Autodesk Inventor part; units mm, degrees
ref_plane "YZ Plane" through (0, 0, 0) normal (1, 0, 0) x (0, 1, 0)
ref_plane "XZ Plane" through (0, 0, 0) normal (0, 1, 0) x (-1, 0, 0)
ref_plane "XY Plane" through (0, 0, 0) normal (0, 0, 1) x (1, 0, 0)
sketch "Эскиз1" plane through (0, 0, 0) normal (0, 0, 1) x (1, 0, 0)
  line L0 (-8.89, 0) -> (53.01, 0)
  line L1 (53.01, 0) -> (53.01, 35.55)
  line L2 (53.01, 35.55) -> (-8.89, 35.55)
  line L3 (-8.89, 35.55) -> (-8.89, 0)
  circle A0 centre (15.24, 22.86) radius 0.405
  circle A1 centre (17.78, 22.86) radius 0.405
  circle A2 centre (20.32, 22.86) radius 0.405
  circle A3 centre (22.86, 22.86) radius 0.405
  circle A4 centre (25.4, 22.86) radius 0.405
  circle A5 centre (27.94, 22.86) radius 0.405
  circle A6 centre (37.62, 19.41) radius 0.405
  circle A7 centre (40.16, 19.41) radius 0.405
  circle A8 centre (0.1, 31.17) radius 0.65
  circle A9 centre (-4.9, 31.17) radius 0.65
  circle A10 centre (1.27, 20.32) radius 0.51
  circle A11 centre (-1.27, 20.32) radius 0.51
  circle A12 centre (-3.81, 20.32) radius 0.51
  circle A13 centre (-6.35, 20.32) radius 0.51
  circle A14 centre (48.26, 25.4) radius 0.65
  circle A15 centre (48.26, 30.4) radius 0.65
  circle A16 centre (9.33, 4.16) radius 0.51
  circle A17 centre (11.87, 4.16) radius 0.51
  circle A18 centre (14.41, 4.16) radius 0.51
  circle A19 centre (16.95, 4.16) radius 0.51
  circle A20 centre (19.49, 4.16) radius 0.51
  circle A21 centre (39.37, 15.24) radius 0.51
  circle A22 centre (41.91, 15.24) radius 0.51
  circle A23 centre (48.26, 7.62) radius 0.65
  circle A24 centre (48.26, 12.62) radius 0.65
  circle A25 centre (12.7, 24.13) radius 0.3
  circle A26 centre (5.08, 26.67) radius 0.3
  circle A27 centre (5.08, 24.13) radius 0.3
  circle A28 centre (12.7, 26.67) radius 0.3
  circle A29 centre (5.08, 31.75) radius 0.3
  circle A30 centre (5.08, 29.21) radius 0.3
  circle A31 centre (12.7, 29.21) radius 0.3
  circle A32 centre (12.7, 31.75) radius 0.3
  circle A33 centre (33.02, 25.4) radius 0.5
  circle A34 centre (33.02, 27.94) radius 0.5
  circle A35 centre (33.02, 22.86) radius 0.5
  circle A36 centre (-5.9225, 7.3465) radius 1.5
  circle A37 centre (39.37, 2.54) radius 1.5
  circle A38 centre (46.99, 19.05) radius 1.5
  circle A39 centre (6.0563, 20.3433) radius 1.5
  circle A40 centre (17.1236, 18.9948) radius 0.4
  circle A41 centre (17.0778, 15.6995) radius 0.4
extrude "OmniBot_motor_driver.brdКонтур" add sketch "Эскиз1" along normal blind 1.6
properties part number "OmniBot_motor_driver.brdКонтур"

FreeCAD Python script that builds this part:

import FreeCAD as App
import Part
import Sketcher
from FreeCAD import Vector
Q = App.Units.Quantity


def add_polygon(sketch, points):
    """Adds a closed chain of lines whose ends are joined by coincident constraints."""
    first, n = sketch.GeometryCount, len(points)
    for a, b in zip(points, points[1:] + points[:1]):
        sketch.addGeometry(Part.LineSegment(App.Vector(*a, 0), App.Vector(*b, 0)), False)
    for i in range(n):
        sketch.addConstraint(Sketcher.Constraint("Coincident", first + i, 2, first + (i + 1) % n, 1))

doc = App.newDocument("Part")
body = doc.addObject("PartDesign::Body", "Body")

# Sketch on XY plane
sketch1 = doc.addObject("Sketcher::SketchObject", "Sketch")
body.addObject(sketch1)
sketch1.AttachmentSupport = (doc.XY_Plane, [""])
sketch1.MapMode = "FlatFace"
add_polygon(sketch1, [(-8.89, 35.55), (-8.89, 0), (53.01, 0), (53.01, 35.55)])  # lines 0-3
sketch1.addGeometry(Part.Circle(Vector(-5.92, 7.35, 0), Vector(0, 0, 1), 1.5), False)  # 4
sketch1.addGeometry(Part.Circle(Vector(9.33, 4.16, 0), Vector(0, 0, 1), 0.51), False)  # 5
sketch1.addGeometry(Part.Circle(Vector(11.87, 4.16, 0), Vector(0, 0, 1), 0.51), False)  # 6
sketch1.addGeometry(Part.Circle(Vector(14.41, 4.16, 0), Vector(0, 0, 1), 0.51), False)  # 7
sketch1.addGeometry(Part.Circle(Vector(16.95, 4.16, 0), Vector(0, 0, 1), 0.51), False)  # 8
sketch1.addGeometry(Part.Circle(Vector(19.49, 4.16, 0), Vector(0, 0, 1), 0.51), False)  # 9
sketch1.addGeometry(Part.Circle(Vector(17.08, 15.7, 0), Vector(0, 0, 1), 0.4), False)  # 10
sketch1.addGeometry(Part.Circle(Vector(39.37, 2.54, 0), Vector(0, 0, 1), 1.5), False)  # 11
sketch1.addGeometry(Part.Circle(Vector(48.26, 7.62, 0), Vector(0, 0, 1), 0.65), False)  # 12
sketch1.addGeometry(Part.Circle(Vector(48.26, 12.62, 0), Vector(0, 0, 1), 0.65), False)  # 13
sketch1.addGeometry(Part.Circle(Vector(39.37, 15.24, 0), Vector(0, 0, 1), 0.51), False)  # 14
sketch1.addGeometry(Part.Circle(Vector(41.91, 15.24, 0), Vector(0, 0, 1), 0.51), False)  # 15
sketch1.addGeometry(Part.Circle(Vector(-6.35, 20.32, 0), Vector(0, 0, 1), 0.51), False)  # 16
sketch1.addGeometry(Part.Circle(Vector(-3.81, 20.32, 0), Vector(0, 0, 1), 0.51), False)  # 17
sketch1.addGeometry(Part.Circle(Vector(-1.27, 20.32, 0), Vector(0, 0, 1), 0.51), False)  # 18
sketch1.addGeometry(Part.Circle(Vector(1.27, 20.32, 0), Vector(0, 0, 1), 0.51), False)  # 19
sketch1.addGeometry(Part.Circle(Vector(6.06, 20.34, 0), Vector(0, 0, 1), 1.5), False)  # 20
sketch1.addGeometry(Part.Circle(Vector(5.08, 24.13, 0), Vector(0, 0, 1), 0.3), False)  # 21
sketch1.addGeometry(Part.Circle(Vector(17.12, 18.99, 0), Vector(0, 0, 1), 0.4), False)  # 22
sketch1.addGeometry(Part.Circle(Vector(12.7, 24.13, 0), Vector(0, 0, 1), 0.3), False)  # 23
sketch1.addGeometry(Part.Circle(Vector(15.24, 22.86, 0), Vector(0, 0, 1), 0.41), False)  # 24
sketch1.addGeometry(Part.Circle(Vector(17.78, 22.86, 0), Vector(0, 0, 1), 0.41), False)  # 25
sketch1.addGeometry(Part.Circle(Vector(20.32, 22.86, 0), Vector(0, 0, 1), 0.41), False)  # 26
sketch1.addGeometry(Part.Circle(Vector(5.08, 26.67, 0), Vector(0, 0, 1), 0.3), False)  # 27
sketch1.addGeometry(Part.Circle(Vector(5.08, 29.21, 0), Vector(0, 0, 1), 0.3), False)  # 28
sketch1.addGeometry(Part.Circle(Vector(-4.9, 31.17, 0), Vector(0, 0, 1), 0.65), False)  # 29
sketch1.addGeometry(Part.Circle(Vector(0.1, 31.17, 0), Vector(0, 0, 1), 0.65), False)  # 30
sketch1.addGeometry(Part.Circle(Vector(5.08, 31.75, 0), Vector(0, 0, 1), 0.3), False)  # 31
sketch1.addGeometry(Part.Circle(Vector(12.7, 26.67, 0), Vector(0, 0, 1), 0.3), False)  # 32
sketch1.addGeometry(Part.Circle(Vector(12.7, 29.21, 0), Vector(0, 0, 1), 0.3), False)  # 33
sketch1.addGeometry(Part.Circle(Vector(12.7, 31.75, 0), Vector(0, 0, 1), 0.3), False)  # 34
sketch1.addGeometry(Part.Circle(Vector(22.86, 22.86, 0), Vector(0, 0, 1), 0.41), False)  # 35
sketch1.addGeometry(Part.Circle(Vector(25.4, 22.86, 0), Vector(0, 0, 1), 0.41), False)  # 36
sketch1.addGeometry(Part.Circle(Vector(27.94, 22.86, 0), Vector(0, 0, 1), 0.41), False)  # 37
sketch1.addGeometry(Part.Circle(Vector(33.02, 22.86, 0), Vector(0, 0, 1), 0.5), False)  # 38
sketch1.addGeometry(Part.Circle(Vector(33.02, 25.4, 0), Vector(0, 0, 1), 0.5), False)  # 39
sketch1.addGeometry(Part.Circle(Vector(37.62, 19.41, 0), Vector(0, 0, 1), 0.41), False)  # 40
sketch1.addGeometry(Part.Circle(Vector(40.16, 19.41, 0), Vector(0, 0, 1), 0.41), False)  # 41
sketch1.addGeometry(Part.Circle(Vector(46.99, 19.05, 0), Vector(0, 0, 1), 1.5), False)  # 42
sketch1.addGeometry(Part.Circle(Vector(48.26, 25.4, 0), Vector(0, 0, 1), 0.65), False)  # 43
sketch1.addGeometry(Part.Circle(Vector(33.02, 27.94, 0), Vector(0, 0, 1), 0.5), False)  # 44
sketch1.addGeometry(Part.Circle(Vector(48.26, 30.4, 0), Vector(0, 0, 1), 0.65), False)  # 45
sketch1.addConstraint([
    Sketcher.Constraint("Vertical", 0),
    Sketcher.Constraint("Horizontal", 1),
    Sketcher.Constraint("Vertical", 2),
    Sketcher.Constraint("Horizontal", 3),
    Sketcher.Constraint("Equal", 5, 6),
    Sketcher.Constraint("Equal", 6, 7),
    Sketcher.Constraint("Equal", 7, 8),
    Sketcher.Constraint("Equal", 8, 9),
    Sketcher.Constraint("Equal", 4, 11),
    Sketcher.Constraint("Equal", 12, 13),
    Sketcher.Constraint("Equal", 9, 14),
    Sketcher.Constraint("Equal", 14, 15),
    Sketcher.Constraint("Equal", 15, 16),
    Sketcher.Constraint("Equal", 16, 17),
    Sketcher.Constraint("Equal", 17, 18),
    Sketcher.Constraint("Equal", 18, 19),
    Sketcher.Constraint("Equal", 11, 20),
    Sketcher.Constraint("Equal", 10, 22),
    Sketcher.Constraint("Equal", 21, 23),
    Sketcher.Constraint("Equal", 24, 25),
    Sketcher.Constraint("Equal", 25, 26),
    Sketcher.Constraint("Equal", 23, 27),
    Sketcher.Constraint("Equal", 27, 28),
    Sketcher.Constraint("Equal", 13, 29),
    Sketcher.Constraint("Equal", 29, 30),
    Sketcher.Constraint("Equal", 28, 31),
    Sketcher.Constraint("Equal", 31, 32),
    Sketcher.Constraint("Equal", 32, 33),
    Sketcher.Constraint("Equal", 33, 34),
    Sketcher.Constraint("Equal", 26, 35),
    Sketcher.Constraint("Equal", 35, 36),
    Sketcher.Constraint("Equal", 36, 37),
    Sketcher.Constraint("Equal", 38, 39),
    Sketcher.Constraint("Equal", 37, 40),
    Sketcher.Constraint("Equal", 40, 41),
    Sketcher.Constraint("Equal", 20, 42),
    Sketcher.Constraint("Equal", 30, 43),
    Sketcher.Constraint("Equal", 39, 44),
    Sketcher.Constraint("Equal", 43, 45),
    Sketcher.Constraint("Symmetric", 18, 3, 19, 3, -2),
    Sketcher.Constraint("PointOnObject", 0, 2, -1),
    Sketcher.Constraint("Horizontal", 5, 3, 6, 3),
    Sketcher.Constraint("Horizontal", 6, 3, 7, 3),
    Sketcher.Constraint("Horizontal", 7, 3, 8, 3),
    Sketcher.Constraint("Horizontal", 8, 3, 9, 3),
    Sketcher.Constraint("Horizontal", 14, 3, 15, 3),
    Sketcher.Constraint("Horizontal", 16, 3, 17, 3),
    Sketcher.Constraint("Horizontal", 17, 3, 18, 3),
    Sketcher.Constraint("Horizontal", 21, 3, 23, 3),
    Sketcher.Constraint("Horizontal", 24, 3, 25, 3),
    Sketcher.Constraint("Horizontal", 25, 3, 26, 3),
    Sketcher.Constraint("Horizontal", 29, 3, 30, 3),
    Sketcher.Constraint("Horizontal", 27, 3, 32, 3),
    Sketcher.Constraint("Horizontal", 28, 3, 33, 3),
    Sketcher.Constraint("Horizontal", 31, 3, 34, 3),
    Sketcher.Constraint("Horizontal", 26, 3, 35, 3),
    Sketcher.Constraint("Horizontal", 35, 3, 36, 3),
    Sketcher.Constraint("Horizontal", 36, 3, 37, 3),
    Sketcher.Constraint("Horizontal", 37, 3, 38, 3),
    Sketcher.Constraint("Horizontal", 40, 3, 41, 3),
    Sketcher.Constraint("Horizontal", 39, 3, 43, 3),
    Sketcher.Constraint("Vertical", 12, 3, 13, 3),
    Sketcher.Constraint("Vertical", 11, 3, 14, 3),
    Sketcher.Constraint("Vertical", 21, 3, 27, 3),
    Sketcher.Constraint("Vertical", 27, 3, 28, 3),
    Sketcher.Constraint("Vertical", 28, 3, 31, 3),
    Sketcher.Constraint("Vertical", 23, 3, 32, 3),
    Sketcher.Constraint("Vertical", 32, 3, 33, 3),
    Sketcher.Constraint("Vertical", 33, 3, 34, 3),
    Sketcher.Constraint("Vertical", 38, 3, 39, 3),
    Sketcher.Constraint("Vertical", 13, 3, 43, 3),
    Sketcher.Constraint("Vertical", 39, 3, 44, 3),
    Sketcher.Constraint("Vertical", 43, 3, 45, 3),
    Sketcher.Constraint("Diameter", 4, Q("3 mm")),
    Sketcher.Constraint("Diameter", 38, Q("1 mm")),
    Sketcher.Constraint("Diameter", 10, Q("0.8 mm")),
    Sketcher.Constraint("Diameter", 12, Q("1.3 mm")),
    Sketcher.Constraint("Diameter", 21, Q("0.6 mm")),
    Sketcher.Constraint("Diameter", 5, Q("1.02 mm")),
    Sketcher.Constraint("Diameter", 24, Q("0.81 mm")),
    Sketcher.Constraint("DistanceX", 1, 1, 1, 2, Q("61.9 mm")),
    Sketcher.Constraint("DistanceY", 12, 3, 13, 3, Q("5 mm")),
    Sketcher.Constraint("DistanceX", 29, 3, 30, 3, Q("5 mm")),
    Sketcher.Constraint("DistanceY", 43, 3, 45, 3, Q("5 mm")),
    Sketcher.Constraint("DistanceY", 0, 2, 0, 1, Q("35.55 mm")),
    Sketcher.Constraint("DistanceX", -1, 1, 23, 3, Q("12.7 mm")),
    Sketcher.Constraint("DistanceX", 29, 3, -1, 1, Q("4.9 mm")),
    Sketcher.Constraint("DistanceX", -1, 1, 36, 3, Q("25.4 mm")),
    Sketcher.Constraint("DistanceY", -1, 1, 39, 3, Q("25.4 mm")),
    Sketcher.Constraint("DistanceX", 6, 3, 11, 3, Q("27.5 mm")),
    Sketcher.Constraint("DistanceY", 11, 3, 14, 3, Q("12.7 mm")),
    Sketcher.Constraint("DistanceX", 18, 3, 5, 3, Q("10.6 mm")),
    Sketcher.Constraint("DistanceY", 27, 3, 29, 3, Q("4.5 mm")),
    Sketcher.Constraint("DistanceX", 38, 3, 40, 3, Q("4.6 mm")),
    Sketcher.Constraint("DistanceX", 41, 3, 43, 3, Q("8.1 mm")),
    Sketcher.Constraint("DistanceX", 15, 3, 1, 2, Q("11.1 mm")),
    Sketcher.Constraint("DistanceY", 42, 3, 2, 2, Q("16.5 mm")),
    Sketcher.Constraint("DistanceY", 31, 3, 3, 2, Q("3.8 mm")),
    Sketcher.Constraint("DistanceX", -1, 1, 5, 3, Q("9.33 mm")),
    Sketcher.Constraint("DistanceY", -1, 1, 5, 3, Q("4.16 mm")),
    Sketcher.Constraint("DistanceX", -1, 1, 6, 3, Q("11.87 mm")),
    Sketcher.Constraint("DistanceX", -1, 1, 7, 3, Q("14.41 mm")),
    Sketcher.Constraint("DistanceX", -1, 1, 8, 3, Q("16.95 mm")),
    Sketcher.Constraint("DistanceX", -1, 1, 9, 3, Q("19.49 mm")),
    Sketcher.Constraint("DistanceY", -1, 1, 11, 3, Q("2.54 mm")),
    Sketcher.Constraint("DistanceX", -1, 1, 12, 3, Q("48.26 mm")),
    Sketcher.Constraint("DistanceY", -1, 1, 12, 3, Q("7.62 mm")),
    Sketcher.Constraint("DistanceX", -1, 1, 15, 3, Q("41.91 mm")),
    Sketcher.Constraint("DistanceX", 16, 3, -1, 1, Q("6.35 mm")),
    Sketcher.Constraint("DistanceY", -1, 1, 16, 3, Q("20.32 mm")),
    Sketcher.Constraint("DistanceX", 17, 3, -1, 1, Q("3.81 mm")),
    Sketcher.Constraint("DistanceX", -1, 1, 21, 3, Q("5.08 mm")),
    Sketcher.Constraint("DistanceY", -1, 1, 21, 3, Q("24.13 mm")),
    Sketcher.Constraint("DistanceX", -1, 1, 24, 3, Q("15.24 mm")),
    Sketcher.Constraint("DistanceY", -1, 1, 24, 3, Q("22.86 mm")),
    Sketcher.Constraint("DistanceX", -1, 1, 25, 3, Q("17.78 mm")),
    Sketcher.Constraint("DistanceX", -1, 1, 26, 3, Q("20.32 mm")),
    Sketcher.Constraint("DistanceY", -1, 1, 27, 3, Q("26.67 mm")),
    Sketcher.Constraint("DistanceY", -1, 1, 28, 3, Q("29.21 mm")),
    Sketcher.Constraint("DistanceX", -1, 1, 35, 3, Q("22.86 mm")),
    Sketcher.Constraint("DistanceX", -1, 1, 37, 3, Q("27.94 mm")),
    Sketcher.Constraint("DistanceX", -1, 1, 38, 3, Q("33.02 mm")),
    Sketcher.Constraint("DistanceY", -1, 1, 40, 3, Q("19.41 mm")),
    Sketcher.Constraint("DistanceX", -1, 1, 42, 3, Q("46.99 mm")),
    Sketcher.Constraint("DistanceY", -1, 1, 44, 3, Q("27.94 mm")),
    Sketcher.Constraint("DistanceX", 4, 3, -1, 1, Q("5.9225 mm")),
    Sketcher.Constraint("DistanceY", -1, 1, 4, 3, Q("7.3465 mm")),
    Sketcher.Constraint("DistanceX", -1, 1, 10, 3, Q("17.0778 mm")),
    Sketcher.Constraint("DistanceY", -1, 1, 10, 3, Q("15.6995 mm")),
    Sketcher.Constraint("DistanceX", -1, 1, 20, 3, Q("6.0563 mm")),
    Sketcher.Constraint("DistanceY", -1, 1, 20, 3, Q("20.3433 mm")),
    Sketcher.Constraint("DistanceX", -1, 1, 22, 3, Q("17.1236 mm")),
    Sketcher.Constraint("DistanceY", -1, 1, 22, 3, Q("18.9948 mm")),
])
pad1 = doc.addObject("PartDesign::Pad", "Pad")
body.addObject(pad1)
pad1.Profile = sketch1
pad1.Length = 1.6

doc.recompute()
